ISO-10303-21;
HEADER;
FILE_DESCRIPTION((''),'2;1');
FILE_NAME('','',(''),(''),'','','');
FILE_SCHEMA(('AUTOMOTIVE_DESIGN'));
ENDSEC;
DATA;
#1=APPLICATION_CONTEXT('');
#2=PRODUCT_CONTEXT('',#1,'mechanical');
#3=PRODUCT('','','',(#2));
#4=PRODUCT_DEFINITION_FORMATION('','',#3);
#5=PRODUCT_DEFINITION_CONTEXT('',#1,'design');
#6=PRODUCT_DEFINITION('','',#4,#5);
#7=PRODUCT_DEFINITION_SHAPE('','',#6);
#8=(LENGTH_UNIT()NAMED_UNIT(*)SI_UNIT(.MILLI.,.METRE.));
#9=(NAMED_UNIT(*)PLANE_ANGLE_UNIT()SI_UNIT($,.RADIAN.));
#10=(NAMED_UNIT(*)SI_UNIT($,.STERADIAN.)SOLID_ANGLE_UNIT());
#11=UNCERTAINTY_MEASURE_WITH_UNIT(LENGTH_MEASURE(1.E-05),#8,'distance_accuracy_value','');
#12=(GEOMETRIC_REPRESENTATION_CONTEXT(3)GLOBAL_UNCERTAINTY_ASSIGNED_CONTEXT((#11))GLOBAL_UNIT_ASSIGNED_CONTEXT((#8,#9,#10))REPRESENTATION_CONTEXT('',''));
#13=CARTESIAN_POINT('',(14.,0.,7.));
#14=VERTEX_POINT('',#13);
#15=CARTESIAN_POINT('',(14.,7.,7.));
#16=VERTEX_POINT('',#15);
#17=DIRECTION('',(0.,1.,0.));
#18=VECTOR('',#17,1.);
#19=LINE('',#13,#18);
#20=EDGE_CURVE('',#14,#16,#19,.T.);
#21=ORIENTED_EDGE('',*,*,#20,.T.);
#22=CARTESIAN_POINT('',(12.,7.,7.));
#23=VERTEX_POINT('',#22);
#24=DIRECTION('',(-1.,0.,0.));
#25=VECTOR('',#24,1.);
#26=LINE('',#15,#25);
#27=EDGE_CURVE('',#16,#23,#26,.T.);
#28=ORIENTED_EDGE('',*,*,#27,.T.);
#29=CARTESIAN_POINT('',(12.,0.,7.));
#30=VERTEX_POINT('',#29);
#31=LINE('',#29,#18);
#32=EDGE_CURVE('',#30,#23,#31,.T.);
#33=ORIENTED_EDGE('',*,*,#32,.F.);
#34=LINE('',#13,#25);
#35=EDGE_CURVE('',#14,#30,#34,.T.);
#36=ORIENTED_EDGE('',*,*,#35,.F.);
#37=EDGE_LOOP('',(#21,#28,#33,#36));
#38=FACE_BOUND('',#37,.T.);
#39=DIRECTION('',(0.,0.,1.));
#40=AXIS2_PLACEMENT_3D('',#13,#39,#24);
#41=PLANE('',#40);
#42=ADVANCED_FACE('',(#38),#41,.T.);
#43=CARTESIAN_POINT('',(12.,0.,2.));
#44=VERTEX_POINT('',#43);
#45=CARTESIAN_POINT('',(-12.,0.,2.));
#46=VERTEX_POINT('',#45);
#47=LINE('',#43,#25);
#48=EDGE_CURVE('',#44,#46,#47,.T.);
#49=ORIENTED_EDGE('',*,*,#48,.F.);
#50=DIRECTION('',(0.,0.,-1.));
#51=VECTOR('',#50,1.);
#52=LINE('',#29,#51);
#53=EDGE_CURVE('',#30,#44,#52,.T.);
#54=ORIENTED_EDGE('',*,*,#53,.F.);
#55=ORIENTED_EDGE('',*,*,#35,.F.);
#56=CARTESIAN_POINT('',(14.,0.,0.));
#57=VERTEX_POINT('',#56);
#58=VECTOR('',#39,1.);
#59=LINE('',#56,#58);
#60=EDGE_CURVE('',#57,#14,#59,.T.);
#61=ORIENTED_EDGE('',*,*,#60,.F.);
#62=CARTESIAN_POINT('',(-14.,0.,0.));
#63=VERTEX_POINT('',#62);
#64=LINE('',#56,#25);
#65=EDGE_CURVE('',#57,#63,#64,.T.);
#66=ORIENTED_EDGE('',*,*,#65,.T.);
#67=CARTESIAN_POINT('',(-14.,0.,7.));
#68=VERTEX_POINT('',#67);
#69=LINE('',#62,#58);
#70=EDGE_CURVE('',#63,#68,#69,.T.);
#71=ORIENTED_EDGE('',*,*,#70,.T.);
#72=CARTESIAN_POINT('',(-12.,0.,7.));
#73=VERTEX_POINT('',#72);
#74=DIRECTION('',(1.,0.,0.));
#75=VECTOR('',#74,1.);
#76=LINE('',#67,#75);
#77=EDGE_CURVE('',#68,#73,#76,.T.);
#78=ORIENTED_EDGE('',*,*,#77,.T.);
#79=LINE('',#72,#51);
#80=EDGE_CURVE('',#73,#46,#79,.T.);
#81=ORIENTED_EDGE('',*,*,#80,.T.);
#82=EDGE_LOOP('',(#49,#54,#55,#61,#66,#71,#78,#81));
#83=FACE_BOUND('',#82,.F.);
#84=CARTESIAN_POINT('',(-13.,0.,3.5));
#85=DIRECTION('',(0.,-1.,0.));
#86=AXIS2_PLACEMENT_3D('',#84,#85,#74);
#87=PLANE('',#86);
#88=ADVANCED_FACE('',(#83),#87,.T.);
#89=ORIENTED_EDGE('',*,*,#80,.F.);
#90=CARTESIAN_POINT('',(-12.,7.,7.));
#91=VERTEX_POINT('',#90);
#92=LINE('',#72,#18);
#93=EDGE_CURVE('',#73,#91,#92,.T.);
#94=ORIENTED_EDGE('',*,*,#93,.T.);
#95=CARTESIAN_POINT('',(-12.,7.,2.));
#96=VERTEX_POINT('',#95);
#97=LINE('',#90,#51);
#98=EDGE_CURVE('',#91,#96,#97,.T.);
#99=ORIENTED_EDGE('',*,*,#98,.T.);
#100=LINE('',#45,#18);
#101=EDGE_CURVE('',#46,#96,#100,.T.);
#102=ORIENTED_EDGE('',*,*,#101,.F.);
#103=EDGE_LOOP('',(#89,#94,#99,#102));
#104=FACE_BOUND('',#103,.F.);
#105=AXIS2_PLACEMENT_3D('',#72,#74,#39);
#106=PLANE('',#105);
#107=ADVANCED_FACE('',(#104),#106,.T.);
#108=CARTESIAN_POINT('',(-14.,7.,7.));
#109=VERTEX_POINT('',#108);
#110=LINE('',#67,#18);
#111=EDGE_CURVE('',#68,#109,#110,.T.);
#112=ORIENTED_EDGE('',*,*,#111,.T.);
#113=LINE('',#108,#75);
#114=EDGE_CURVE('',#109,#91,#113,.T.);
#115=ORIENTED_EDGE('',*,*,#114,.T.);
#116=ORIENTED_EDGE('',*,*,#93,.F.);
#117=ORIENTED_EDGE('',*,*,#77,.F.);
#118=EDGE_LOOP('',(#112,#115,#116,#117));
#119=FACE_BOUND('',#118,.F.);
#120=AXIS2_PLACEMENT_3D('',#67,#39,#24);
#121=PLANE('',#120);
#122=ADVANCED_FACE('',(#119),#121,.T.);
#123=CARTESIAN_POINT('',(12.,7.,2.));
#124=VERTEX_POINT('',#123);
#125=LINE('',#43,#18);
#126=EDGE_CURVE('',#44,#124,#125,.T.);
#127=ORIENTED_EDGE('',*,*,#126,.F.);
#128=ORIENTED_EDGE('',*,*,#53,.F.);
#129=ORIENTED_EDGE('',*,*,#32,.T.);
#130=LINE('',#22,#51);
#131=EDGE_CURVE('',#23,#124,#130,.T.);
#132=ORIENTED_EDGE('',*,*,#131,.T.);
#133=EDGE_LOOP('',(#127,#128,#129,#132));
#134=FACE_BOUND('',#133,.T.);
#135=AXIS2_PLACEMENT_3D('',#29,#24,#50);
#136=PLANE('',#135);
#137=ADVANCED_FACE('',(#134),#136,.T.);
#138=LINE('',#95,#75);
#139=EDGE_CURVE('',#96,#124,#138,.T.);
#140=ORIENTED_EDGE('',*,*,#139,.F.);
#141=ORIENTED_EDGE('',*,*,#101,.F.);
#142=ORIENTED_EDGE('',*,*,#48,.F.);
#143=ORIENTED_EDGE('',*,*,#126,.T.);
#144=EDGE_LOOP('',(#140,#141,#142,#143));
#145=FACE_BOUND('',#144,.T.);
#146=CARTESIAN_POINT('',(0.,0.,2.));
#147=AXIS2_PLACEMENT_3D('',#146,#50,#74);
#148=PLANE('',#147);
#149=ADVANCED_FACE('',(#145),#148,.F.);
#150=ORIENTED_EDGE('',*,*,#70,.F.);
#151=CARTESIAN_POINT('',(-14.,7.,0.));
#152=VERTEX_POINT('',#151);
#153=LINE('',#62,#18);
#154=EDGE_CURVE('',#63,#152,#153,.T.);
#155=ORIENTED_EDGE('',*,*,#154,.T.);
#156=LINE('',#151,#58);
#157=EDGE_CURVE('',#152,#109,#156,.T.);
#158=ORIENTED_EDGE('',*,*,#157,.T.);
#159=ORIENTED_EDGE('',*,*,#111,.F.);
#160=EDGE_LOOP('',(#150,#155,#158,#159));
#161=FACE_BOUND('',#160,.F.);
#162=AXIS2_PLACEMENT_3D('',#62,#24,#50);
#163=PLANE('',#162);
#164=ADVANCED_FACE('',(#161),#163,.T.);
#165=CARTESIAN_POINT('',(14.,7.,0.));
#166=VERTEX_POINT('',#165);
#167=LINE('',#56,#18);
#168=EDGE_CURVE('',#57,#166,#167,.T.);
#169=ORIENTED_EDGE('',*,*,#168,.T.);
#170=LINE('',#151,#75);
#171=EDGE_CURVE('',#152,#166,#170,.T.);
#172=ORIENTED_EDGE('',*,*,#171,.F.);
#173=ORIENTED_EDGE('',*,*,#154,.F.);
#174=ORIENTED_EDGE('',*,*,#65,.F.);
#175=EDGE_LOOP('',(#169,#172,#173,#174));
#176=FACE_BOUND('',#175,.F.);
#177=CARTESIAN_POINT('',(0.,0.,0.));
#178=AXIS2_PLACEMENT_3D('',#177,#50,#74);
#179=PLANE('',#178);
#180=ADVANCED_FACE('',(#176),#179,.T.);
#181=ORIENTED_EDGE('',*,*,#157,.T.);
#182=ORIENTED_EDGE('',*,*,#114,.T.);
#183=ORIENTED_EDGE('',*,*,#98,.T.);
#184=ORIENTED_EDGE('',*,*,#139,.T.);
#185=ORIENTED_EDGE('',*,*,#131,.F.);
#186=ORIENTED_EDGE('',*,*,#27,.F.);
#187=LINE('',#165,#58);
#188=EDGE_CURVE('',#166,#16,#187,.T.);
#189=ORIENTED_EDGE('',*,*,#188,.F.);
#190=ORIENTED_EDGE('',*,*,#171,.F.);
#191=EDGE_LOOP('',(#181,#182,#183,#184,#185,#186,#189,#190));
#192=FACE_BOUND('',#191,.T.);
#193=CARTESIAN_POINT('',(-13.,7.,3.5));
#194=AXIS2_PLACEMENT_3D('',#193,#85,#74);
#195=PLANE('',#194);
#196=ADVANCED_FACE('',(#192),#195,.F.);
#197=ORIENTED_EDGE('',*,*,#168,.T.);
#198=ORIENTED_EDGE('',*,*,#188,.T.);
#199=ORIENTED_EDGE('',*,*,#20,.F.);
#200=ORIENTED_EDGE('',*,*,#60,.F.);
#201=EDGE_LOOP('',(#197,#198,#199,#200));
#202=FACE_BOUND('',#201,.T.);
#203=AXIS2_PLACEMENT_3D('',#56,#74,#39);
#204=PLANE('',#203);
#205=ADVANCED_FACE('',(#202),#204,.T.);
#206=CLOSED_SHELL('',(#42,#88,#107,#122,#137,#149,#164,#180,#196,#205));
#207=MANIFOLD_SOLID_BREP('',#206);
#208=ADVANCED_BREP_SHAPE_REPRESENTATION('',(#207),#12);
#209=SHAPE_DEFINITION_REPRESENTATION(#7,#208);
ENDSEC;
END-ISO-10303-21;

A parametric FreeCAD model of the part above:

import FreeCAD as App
import Part
import Sketcher
from FreeCAD import Vector


def add_polygon(sketch, points):
    """Adds a closed chain of lines whose ends are joined by coincident constraints."""
    first, n = sketch.GeometryCount, len(points)
    for a, b in zip(points, points[1:] + points[:1]):
        sketch.addGeometry(Part.LineSegment(App.Vector(*a, 0), App.Vector(*b, 0)), False)
    for i in range(n):
        sketch.addConstraint(Sketcher.Constraint("Coincident", first + i, 2, first + (i + 1) % n, 1))

doc = App.newDocument("Part")
body = doc.addObject("PartDesign::Body", "Body")

# Sketch on XZ plane
sketch1 = doc.addObject("Sketcher::SketchObject", "Sketch")
body.addObject(sketch1)
sketch1.AttachmentSupport = (doc.XZ_Plane, [""])
sketch1.MapMode = "FlatFace"
add_polygon(sketch1, [(14, 0), (14, 7), (12, 7), (12, 2), (0, 2), (0, 0)])  # lines 0-5
sketch1.addConstraint(Sketcher.Constraint("Vertical", 0))
sketch1.addConstraint(Sketcher.Constraint("Horizontal", 1))
sketch1.addConstraint(Sketcher.Constraint("Vertical", 2))
sketch1.addConstraint(Sketcher.Constraint("Horizontal", 3))
sketch1.addConstraint(Sketcher.Constraint("Vertical", 4))
sketch1.addConstraint(Sketcher.Constraint("Horizontal", 5))
sketch1.addConstraint(Sketcher.Constraint("Coincident", 4, 2, -1, 1))
sketch1.addConstraint(Sketcher.Constraint("Equal", 1, 4))
sketch1.addConstraint(Sketcher.Constraint("DistanceX", 1, 2, 1, 1, 2.0))
sketch1.addConstraint(Sketcher.Constraint("DistanceX", 3, 2, 3, 1, 12.0))
sketch1.addConstraint(Sketcher.Constraint("DistanceY", 0, 1, 0, 2, 7.0))
pad1 = doc.addObject("PartDesign::Pad", "Pad")
body.addObject(pad1)
pad1.Profile = sketch1
pad1.Length = 7
pad1.Reversed = True
body2 = doc.addObject("PartDesign::Body", "Body001")
doc.recompute()

body2.BaseFeature = body
doc.recompute()

mirroring = doc.addObject("Part::Mirroring", "Mirroring")
mirroring.Source = body
mirroring.Base = Vector(0, 0, 0)
mirroring.Normal = Vector(1, 0, 0)
body3 = doc.addObject("PartDesign::Body", "Body002")
body3.BaseFeature = mirroring
boolean = doc.addObject("PartDesign::Boolean", "Boolean")
body2.addObject(boolean)
boolean.Type = "Fuse"
boolean.addObjects([body3])
doc.recompute()
mirroring.Visibility = False

doc.recompute()
